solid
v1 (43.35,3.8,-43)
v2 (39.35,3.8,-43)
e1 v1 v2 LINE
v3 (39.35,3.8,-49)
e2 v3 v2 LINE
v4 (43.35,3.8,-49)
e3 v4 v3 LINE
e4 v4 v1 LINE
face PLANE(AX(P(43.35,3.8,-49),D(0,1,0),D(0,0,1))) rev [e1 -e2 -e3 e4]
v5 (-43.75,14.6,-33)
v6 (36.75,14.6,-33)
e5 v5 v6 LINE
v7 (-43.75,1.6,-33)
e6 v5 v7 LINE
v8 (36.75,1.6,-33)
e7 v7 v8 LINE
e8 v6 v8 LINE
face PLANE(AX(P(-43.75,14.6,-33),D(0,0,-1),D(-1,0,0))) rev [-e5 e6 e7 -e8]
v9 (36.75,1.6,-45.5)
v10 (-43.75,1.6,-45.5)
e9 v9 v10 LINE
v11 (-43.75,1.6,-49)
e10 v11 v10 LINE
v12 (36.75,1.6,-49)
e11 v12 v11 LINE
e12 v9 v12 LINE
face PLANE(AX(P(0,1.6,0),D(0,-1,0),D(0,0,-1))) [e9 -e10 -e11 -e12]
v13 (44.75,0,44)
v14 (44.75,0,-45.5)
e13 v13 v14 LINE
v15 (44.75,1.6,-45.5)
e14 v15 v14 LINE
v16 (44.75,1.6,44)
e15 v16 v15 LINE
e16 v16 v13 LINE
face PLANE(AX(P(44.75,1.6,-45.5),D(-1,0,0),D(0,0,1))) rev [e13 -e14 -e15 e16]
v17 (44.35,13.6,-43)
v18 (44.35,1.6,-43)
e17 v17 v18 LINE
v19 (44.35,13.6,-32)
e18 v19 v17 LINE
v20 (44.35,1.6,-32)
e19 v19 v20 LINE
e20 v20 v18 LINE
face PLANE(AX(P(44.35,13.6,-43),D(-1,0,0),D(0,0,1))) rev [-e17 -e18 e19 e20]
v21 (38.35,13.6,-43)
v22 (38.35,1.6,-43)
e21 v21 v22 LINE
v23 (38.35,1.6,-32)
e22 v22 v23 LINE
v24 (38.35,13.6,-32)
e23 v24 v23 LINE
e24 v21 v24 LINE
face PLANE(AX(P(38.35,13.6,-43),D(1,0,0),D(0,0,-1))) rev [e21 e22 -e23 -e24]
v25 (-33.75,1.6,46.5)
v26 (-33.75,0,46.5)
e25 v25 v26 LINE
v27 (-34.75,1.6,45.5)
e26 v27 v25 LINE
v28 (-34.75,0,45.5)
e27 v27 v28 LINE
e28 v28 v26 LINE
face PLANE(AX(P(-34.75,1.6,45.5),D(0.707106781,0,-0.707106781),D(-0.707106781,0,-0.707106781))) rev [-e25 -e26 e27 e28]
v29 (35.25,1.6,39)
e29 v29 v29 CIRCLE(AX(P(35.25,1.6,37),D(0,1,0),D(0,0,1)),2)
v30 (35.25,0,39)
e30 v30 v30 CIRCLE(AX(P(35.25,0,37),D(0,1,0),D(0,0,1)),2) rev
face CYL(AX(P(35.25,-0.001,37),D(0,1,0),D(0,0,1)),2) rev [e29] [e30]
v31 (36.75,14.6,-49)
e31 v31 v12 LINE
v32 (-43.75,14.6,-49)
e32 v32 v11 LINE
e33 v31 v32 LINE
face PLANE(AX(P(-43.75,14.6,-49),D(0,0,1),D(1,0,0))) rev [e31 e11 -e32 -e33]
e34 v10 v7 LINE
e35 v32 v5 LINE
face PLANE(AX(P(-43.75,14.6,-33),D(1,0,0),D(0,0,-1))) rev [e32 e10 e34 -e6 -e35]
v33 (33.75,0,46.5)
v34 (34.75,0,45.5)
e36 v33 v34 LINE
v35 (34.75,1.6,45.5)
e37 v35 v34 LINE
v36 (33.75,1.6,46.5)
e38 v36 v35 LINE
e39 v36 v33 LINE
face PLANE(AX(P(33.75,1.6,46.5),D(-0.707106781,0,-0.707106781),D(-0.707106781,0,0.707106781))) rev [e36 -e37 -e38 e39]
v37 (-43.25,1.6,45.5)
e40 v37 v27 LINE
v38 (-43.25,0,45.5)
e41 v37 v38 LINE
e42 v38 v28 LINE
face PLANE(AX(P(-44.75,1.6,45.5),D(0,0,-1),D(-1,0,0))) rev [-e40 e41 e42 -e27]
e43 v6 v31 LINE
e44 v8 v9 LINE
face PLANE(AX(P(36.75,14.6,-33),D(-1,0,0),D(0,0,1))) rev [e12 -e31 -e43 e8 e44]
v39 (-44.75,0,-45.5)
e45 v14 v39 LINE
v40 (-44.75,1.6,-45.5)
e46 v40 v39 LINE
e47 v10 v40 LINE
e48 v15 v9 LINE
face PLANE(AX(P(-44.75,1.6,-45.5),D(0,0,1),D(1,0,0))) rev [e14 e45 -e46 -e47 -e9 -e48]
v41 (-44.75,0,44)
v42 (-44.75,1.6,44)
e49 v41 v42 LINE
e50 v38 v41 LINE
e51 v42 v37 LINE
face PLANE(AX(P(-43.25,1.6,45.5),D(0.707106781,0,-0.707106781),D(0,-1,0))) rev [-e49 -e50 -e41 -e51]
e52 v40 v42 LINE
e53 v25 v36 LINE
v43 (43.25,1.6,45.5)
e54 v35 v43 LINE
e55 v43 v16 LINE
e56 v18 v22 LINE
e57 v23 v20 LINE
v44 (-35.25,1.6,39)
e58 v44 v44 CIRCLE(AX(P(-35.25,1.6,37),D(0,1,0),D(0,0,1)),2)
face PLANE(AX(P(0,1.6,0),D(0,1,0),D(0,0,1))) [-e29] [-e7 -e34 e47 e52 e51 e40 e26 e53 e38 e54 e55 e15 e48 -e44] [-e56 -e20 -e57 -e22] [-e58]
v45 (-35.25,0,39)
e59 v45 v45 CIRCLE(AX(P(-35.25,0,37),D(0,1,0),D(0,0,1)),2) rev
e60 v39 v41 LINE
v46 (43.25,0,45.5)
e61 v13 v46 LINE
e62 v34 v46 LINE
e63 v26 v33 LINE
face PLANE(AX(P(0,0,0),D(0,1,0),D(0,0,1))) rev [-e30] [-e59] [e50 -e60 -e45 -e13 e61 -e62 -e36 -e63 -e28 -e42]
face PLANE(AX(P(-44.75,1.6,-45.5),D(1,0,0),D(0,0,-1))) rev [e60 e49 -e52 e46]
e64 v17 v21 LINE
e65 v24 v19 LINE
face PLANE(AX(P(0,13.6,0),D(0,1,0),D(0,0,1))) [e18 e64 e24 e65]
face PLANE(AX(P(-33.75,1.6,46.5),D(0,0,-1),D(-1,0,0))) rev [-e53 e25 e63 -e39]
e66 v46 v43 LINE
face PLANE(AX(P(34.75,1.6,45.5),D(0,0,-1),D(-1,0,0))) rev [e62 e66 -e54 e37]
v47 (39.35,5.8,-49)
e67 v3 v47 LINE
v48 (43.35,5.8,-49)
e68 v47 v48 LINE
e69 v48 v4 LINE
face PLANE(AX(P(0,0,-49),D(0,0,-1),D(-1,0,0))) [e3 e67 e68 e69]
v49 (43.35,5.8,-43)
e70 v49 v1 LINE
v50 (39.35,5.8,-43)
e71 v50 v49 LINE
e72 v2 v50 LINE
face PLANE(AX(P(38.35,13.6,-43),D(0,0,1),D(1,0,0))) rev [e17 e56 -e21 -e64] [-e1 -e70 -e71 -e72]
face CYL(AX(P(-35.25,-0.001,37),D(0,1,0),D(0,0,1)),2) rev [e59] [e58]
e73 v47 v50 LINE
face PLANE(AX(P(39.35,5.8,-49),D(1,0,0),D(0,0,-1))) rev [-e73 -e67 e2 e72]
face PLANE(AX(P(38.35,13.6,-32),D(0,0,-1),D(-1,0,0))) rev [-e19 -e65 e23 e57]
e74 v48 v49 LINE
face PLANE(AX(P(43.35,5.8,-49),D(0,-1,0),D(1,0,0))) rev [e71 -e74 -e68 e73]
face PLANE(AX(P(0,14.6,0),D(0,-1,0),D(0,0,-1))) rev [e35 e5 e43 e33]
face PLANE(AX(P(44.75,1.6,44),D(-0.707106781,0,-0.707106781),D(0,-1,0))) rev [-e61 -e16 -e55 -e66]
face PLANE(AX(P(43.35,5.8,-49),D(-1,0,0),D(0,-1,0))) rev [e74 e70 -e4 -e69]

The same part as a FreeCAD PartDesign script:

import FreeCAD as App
import Part
import Sketcher
Q = App.Units.Quantity


def edges_at(feature, points):
    """Names of the edges that pass closest to the given points."""
    edges = feature.Shape.Edges
    near = lambda p: min(range(len(edges)), key=lambda i: edges[i].distToShape(Part.Vertex(*p))[0])
    return sorted({f"Edge{near(p) + 1}" for p in points})


def add_polygon(sketch, points):
    """Adds a closed chain of lines whose ends are joined by coincident constraints."""
    first, n = sketch.GeometryCount, len(points)
    for a, b in zip(points, points[1:] + points[:1]):
        sketch.addGeometry(Part.LineSegment(App.Vector(*a, 0), App.Vector(*b, 0)), False)
    for i in range(n):
        sketch.addConstraint(Sketcher.Constraint("Coincident", first + i, 2, first + (i + 1) % n, 1))

doc = App.newDocument("Part")
body = doc.addObject("PartDesign::Body", "Body")

sketch1 = body.newObject("Sketcher::SketchObject", "Sketch")
sketch1.AttachmentSupport = (doc.getObject("XZ_Plane"), [""])
sketch1.MapMode = "FlatFace"
add_polygon(sketch1, [(44.8, -45.5), (-44.8, -45.5), (-44.8, 45.5), (-34.8, 45.5), (-33.8, 46.5), (33.8, 46.5), (34.8, 45.5), (44.8, 45.5)])
sketch1.addConstraint(Sketcher.Constraint("Horizontal", 0))
sketch1.addConstraint(Sketcher.Constraint("Vertical", 1))
sketch1.addConstraint(Sketcher.Constraint("Horizontal", 2))
sketch1.addConstraint(Sketcher.Constraint("Horizontal", 4))
sketch1.addConstraint(Sketcher.Constraint("Horizontal", 6))
sketch1.addConstraint(Sketcher.Constraint("Vertical", 7))
sketch1.addConstraint(Sketcher.Constraint("Symmetric", 0, 2, 6, 2, -1, 1))
sketch1.addConstraint(Sketcher.Constraint("Symmetric", 2, 2, 5, 2, -2))
sketch1.addConstraint(Sketcher.Constraint("Perpendicular", 3, 5))
sketch1.addConstraint(Sketcher.Constraint("Equal", 3, 5))
sketch1.addConstraint(Sketcher.Constraint("DistanceX", 2, 1, 2, 2, Q("10 mm")))
sketch1.addConstraint(Sketcher.Constraint("DistanceY", 1, 1, 1, 2, Q("91 mm")))
sketch1.addConstraint(Sketcher.Constraint("DistanceX", 0, 2, 0, 1, Q("89.5 mm")))
sketch1.addConstraint(Sketcher.Constraint("DistanceX", 4, 1, 4, 2, Q("67.5 mm")))
pad1 = body.newObject("PartDesign::Pad", "Pad")
pad1.Profile = sketch1
pad1.Length = 1.6
pad1.Reversed = True

sketch2 = body.newObject("Sketcher::SketchObject", "Sketch001")
sketch2.AttachmentSupport = (doc.getObject("XZ_Plane"), [""])
sketch2.MapMode = "FlatFace"
sketch2.AttachmentOffset = App.Placement(App.Vector(0, 0, -1.6), App.Rotation())
add_polygon(sketch2, [(-44, -49), (-44, -33), (37, -33), (37, -49)])
sketch2.addConstraint(Sketcher.Constraint("Vertical", 0))
sketch2.addConstraint(Sketcher.Constraint("Horizontal", 1))
sketch2.addConstraint(Sketcher.Constraint("Vertical", 2))
sketch2.addConstraint(Sketcher.Constraint("Horizontal", 3))
sketch2.addConstraint(Sketcher.Constraint("DistanceY", 0, 1, 0, 2, Q("16 mm")))
sketch2.addConstraint(Sketcher.Constraint("DistanceX", 1, 1, 1, 2, Q("80.5 mm")))
sketch2.addConstraint(Sketcher.Constraint("DistanceY", 0, 2, -1, 1, Q("33 mm")))
sketch2.addConstraint(Sketcher.Constraint("DistanceX", 0, 2, -1, 1, Q("43.75 mm")))
pad2 = body.newObject("PartDesign::Pad", "Pad001")
pad2.Profile = sketch2
pad2.Length = 13
pad2.Reversed = True

sketch3 = body.newObject("Sketcher::SketchObject", "Sketch002")
sketch3.AttachmentSupport = (doc.getObject("XZ_Plane"), [""])
sketch3.MapMode = "FlatFace"
sketch3.AttachmentOffset = App.Placement(App.Vector(0, 0, -1.6), App.Rotation())
sketch3.addGeometry(Part.Circle(App.Vector(-35.2, 37, 0), App.Vector(0, 0, 1), 2), False)
sketch3.addConstraint(Sketcher.Constraint("Diameter", 0, Q("4 mm")))
sketch3.addConstraint(Sketcher.Constraint("DistanceY", -1, 1, 0, 3, Q("37 mm")))
sketch3.addConstraint(Sketcher.Constraint("DistanceX", 0, 3, -1, 1, Q("35.25 mm")))
pocket1 = body.newObject("PartDesign::Pocket", "Pocket")
pocket1.Profile = sketch3
pocket1.Type = "UpToFirst"
pocket1.Reversed = True

sketch4 = body.newObject("Sketcher::SketchObject", "Sketch003")
sketch4.AttachmentSupport = (doc.getObject("XZ_Plane"), [""])
sketch4.MapMode = "FlatFace"
sketch4.AttachmentOffset = App.Placement(App.Vector(0, 0, -1.6), App.Rotation())
sketch4.addGeometry(Part.Circle(App.Vector(35.2, 37, 0), App.Vector(0, 0, 1), 2), False)
sketch4.addConstraint(Sketcher.Constraint("Diameter", 0, Q("4 mm")))
sketch4.addConstraint(Sketcher.Constraint("DistanceY", -1, 1, 0, 3, Q("37 mm")))
sketch4.addConstraint(Sketcher.Constraint("DistanceX", -1, 1, 0, 3, Q("35.25 mm")))
pocket2 = body.newObject("PartDesign::Pocket", "Pocket001")
pocket2.Profile = sketch4
pocket2.Type = "UpToFirst"
pocket2.Reversed = True
doc.recompute()

chamfer = body.newObject("PartDesign::Chamfer", "Chamfer")
chamfer.Base = (pocket2, edges_at(pocket2, [(44.75, 0.8, 45.5), (-44.75, 0.8, 45.5)]))
chamfer.Size = 1.5

sketch5 = body.newObject("Sketcher::SketchObject", "Sketch004")
sketch5.AttachmentSupport = (doc.getObject("XZ_Plane"), [""])
sketch5.MapMode = "FlatFace"
sketch5.AttachmentOffset = App.Placement(App.Vector(0, 0, -1.6), App.Rotation())
add_polygon(sketch5, [(38, -43), (38, -32), (44, -32), (44, -43)])
sketch5.addConstraint(Sketcher.Constraint("Vertical", 0))
sketch5.addConstraint(Sketcher.Constraint("Horizontal", 1))
sketch5.addConstraint(Sketcher.Constraint("Vertical", 2))
sketch5.addConstraint(Sketcher.Constraint("Horizontal", 3))
sketch5.addConstraint(Sketcher.Constraint("DistanceX", 1, 1, 1, 2, Q("6 mm")))
sketch5.addConstraint(Sketcher.Constraint("DistanceY", 0, 1, 0, 2, Q("11 mm")))
sketch5.addConstraint(Sketcher.Constraint("DistanceY", 0, 2, -1, 1, Q("32 mm")))
sketch5.addConstraint(Sketcher.Constraint("DistanceX", -1, 1, 0, 2, Q("38.35 mm")))
pad3 = body.newObject("PartDesign::Pad", "Pad002")
pad3.Profile = sketch5
pad3.Length = 12
pad3.Reversed = True

sketch6 = body.newObject("Sketcher::SketchObject", "Sketch005")
sketch6.AttachmentSupport = (doc.getObject("XY_Plane"), [""])
sketch6.MapMode = "FlatFace"
sketch6.AttachmentOffset = App.Placement(App.Vector(0, 0, -43), App.Rotation())
add_polygon(sketch6, [(43.4, 5.8), (43.4, 3.8), (39.4, 3.8), (39.4, 5.8)])
sketch6.addConstraint(Sketcher.Constraint("Vertical", 0))
sketch6.addConstraint(Sketcher.Constraint("Horizontal", 1))
sketch6.addConstraint(Sketcher.Constraint("Vertical", 2))
sketch6.addConstraint(Sketcher.Constraint("Horizontal", 3))
sketch6.addConstraint(Sketcher.Constraint("DistanceX", 1, 2, 1, 1, Q("4 mm")))
sketch6.addConstraint(Sketcher.Constraint("DistanceY", 0, 2, 0, 1, Q("2 mm")))
sketch6.addConstraint(Sketcher.Constraint("DistanceY", -1, 1, 0, 2, Q("3.8 mm")))
sketch6.addConstraint(Sketcher.Constraint("DistanceX", -1, 1, 0, 2, Q("43.35 mm")))
pad4 = body.newObject("PartDesign::Pad", "Pad003")
pad4.Profile = sketch6
pad4.Length = 6
pad4.Reversed = True

doc.recompute()
